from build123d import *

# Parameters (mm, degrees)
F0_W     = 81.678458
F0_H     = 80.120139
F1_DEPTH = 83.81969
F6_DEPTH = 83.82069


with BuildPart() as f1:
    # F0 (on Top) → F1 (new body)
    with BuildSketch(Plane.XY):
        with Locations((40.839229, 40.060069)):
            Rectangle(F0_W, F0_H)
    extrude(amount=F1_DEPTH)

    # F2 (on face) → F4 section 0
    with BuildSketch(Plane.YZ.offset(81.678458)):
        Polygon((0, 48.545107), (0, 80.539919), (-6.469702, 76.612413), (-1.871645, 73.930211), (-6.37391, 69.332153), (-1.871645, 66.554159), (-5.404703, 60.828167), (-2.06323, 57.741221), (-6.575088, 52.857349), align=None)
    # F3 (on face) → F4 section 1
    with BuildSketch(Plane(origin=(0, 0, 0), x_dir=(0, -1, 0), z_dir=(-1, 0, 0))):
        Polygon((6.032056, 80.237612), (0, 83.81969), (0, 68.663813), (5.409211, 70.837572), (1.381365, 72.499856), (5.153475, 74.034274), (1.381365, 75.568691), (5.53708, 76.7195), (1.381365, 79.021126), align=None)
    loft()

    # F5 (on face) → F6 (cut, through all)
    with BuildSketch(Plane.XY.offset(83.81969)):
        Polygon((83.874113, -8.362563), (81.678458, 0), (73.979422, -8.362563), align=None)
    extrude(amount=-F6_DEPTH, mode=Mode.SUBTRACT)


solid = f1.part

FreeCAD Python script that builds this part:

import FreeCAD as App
import Part
import Sketcher

V = App.Vector
Q = App.Units.Quantity

doc = App.newDocument("Part")
body = doc.addObject("PartDesign::Body", "Body")

# Sketch on XY plane
sketch1 = body.newObject("Sketcher::SketchObject", "Sketch")
sketch1.AttachmentSupport = (doc.getObject("XY_Plane"), [""])
sketch1.MapMode = "FlatFace"
sketch1.addGeometry([
    Part.LineSegment(V(0, 80, 0), V(0, 0, 0)),
    Part.LineSegment(V(0, 0, 0), V(82, 0, 0)),
    Part.LineSegment(V(82, 0, 0), V(82, 80, 0)),
    Part.LineSegment(V(82, 80, 0), V(0, 80, 0)),
], False)
sketch1.addConstraint([
    Sketcher.Constraint("Coincident", 0, 2, 1, 1),
    Sketcher.Constraint("Coincident", 1, 2, 2, 1),
    Sketcher.Constraint("Coincident", 2, 2, 3, 1),
    Sketcher.Constraint("Coincident", 3, 2, 0, 1),
    Sketcher.Constraint("Vertical", 0),
    Sketcher.Constraint("Horizontal", 1),
    Sketcher.Constraint("Vertical", 2),
    Sketcher.Constraint("Horizontal", 3),
    Sketcher.Constraint("Coincident", 0, 2, -1, 1),
    Sketcher.Constraint("DistanceX", 1, 1, 1, 2, Q("81.678458 mm")),
    Sketcher.Constraint("DistanceY", 0, 2, 0, 1, Q("80.120139 mm")),
])
pad1 = body.newObject("PartDesign::Pad", "Pad")
pad1.Profile = sketch1
pad1.Length = 83.81969

# Sketch on YZ plane
sketch2 = body.newObject("Sketcher::SketchObject", "Sketch001")
sketch2.AttachmentSupport = (doc.getObject("YZ_Plane"), [""])
sketch2.MapMode = "FlatFace"
sketch2.AttachmentOffset = App.Placement(V(0, 0, 81.678458), App.Rotation())
sketch2.addGeometry([
    Part.LineSegment(V(0, 48.5, 0), V(0, 80.5, 0)),  # 0
    Part.LineSegment(V(0, 80.5, 0), V(-6.5, 76.6, 0)),  # 1
    Part.LineSegment(V(-6.5, 76.6, 0), V(-1.9, 73.9, 0)),  # 2
    Part.LineSegment(V(-1.9, 73.9, 0), V(-6.4, 69.3, 0)),  # 3
    Part.LineSegment(V(-6.4, 69.3, 0), V(-1.9, 66.6, 0)),  # 4
    Part.LineSegment(V(-1.9, 66.6, 0), V(-5.4, 60.8, 0)),  # 5
    Part.LineSegment(V(-5.4, 60.8, 0), V(-2.1, 57.7, 0)),  # 6
    Part.LineSegment(V(-2.1, 57.7, 0), V(-6.6, 52.9, 0)),  # 7
    Part.LineSegment(V(-6.6, 52.9, 0), V(0, 48.5, 0)),  # 8
], False)
sketch2.addConstraint([
    Sketcher.Constraint("Coincident", 0, 2, 1, 1),
    Sketcher.Constraint("Coincident", 1, 2, 2, 1),
    Sketcher.Constraint("Coincident", 2, 2, 3, 1),
    Sketcher.Constraint("Coincident", 3, 2, 4, 1),
    Sketcher.Constraint("Coincident", 4, 2, 5, 1),
    Sketcher.Constraint("Coincident", 5, 2, 6, 1),
    Sketcher.Constraint("Coincident", 6, 2, 7, 1),
    Sketcher.Constraint("Coincident", 7, 2, 8, 1),
    Sketcher.Constraint("Coincident", 8, 2, 0, 1),
    Sketcher.Constraint("Vertical", 0),
    Sketcher.Constraint("PointOnObject", 0, 2, -2),
    Sketcher.Constraint("Perpendicular", 4, 5),
    Sketcher.Constraint("Perpendicular", 6, 7),
    Sketcher.Constraint("Vertical", 2, 2, 4, 2),
    Sketcher.Constraint("DistanceX", 1, 2, 5, 2, Q("1.064999 mm")),
    Sketcher.Constraint("DistanceY", 0, 1, 0, 2, Q("31.994812 mm")),
    Sketcher.Constraint("Distance", 1, Q("7.56851 mm")),
    Sketcher.Constraint("Distance", 2, Q("5.323188 mm")),
    Sketcher.Constraint("Distance", 5, Q("6.72826 mm")),
    Sketcher.Constraint("Distance", 6, Q("4.54914 mm")),
    Sketcher.Constraint("Distance", 7, Q("6.64899 mm")),
    Sketcher.Constraint("Distance", 8, Q("7.863028 mm")),
    Sketcher.Constraint("DistanceY", -1, 1, 0, 2, Q("80.539919 mm")),
    Sketcher.Constraint("DistanceY", -1, 1, 2, 2, Q("73.930211 mm")),
    Sketcher.Constraint("DistanceX", 3, 2, -1, 1, Q("6.37391 mm")),
    Sketcher.Constraint("DistanceY", -1, 1, 4, 2, Q("66.554159 mm")),
    Sketcher.Constraint("DistanceX", 6, 2, -1, 1, Q("2.06323 mm")),
])

# Sketch on YZ plane
sketch3 = body.newObject("Sketcher::SketchObject", "Sketch002")
sketch3.AttachmentSupport = (doc.getObject("YZ_Plane"), [""])
sketch3.MapMode = "FlatFace"
sketch3.addGeometry([
    Part.LineSegment(V(-6, 80.2, 0), V(0, 83.8, 0)),  # 0
    Part.LineSegment(V(0, 83.8, 0), V(0, 68.7, 0)),  # 1
    Part.LineSegment(V(0, 68.7, 0), V(-5.4, 70.8, 0)),  # 2
    Part.LineSegment(V(-5.4, 70.8, 0), V(-1.4, 72.5, 0)),  # 3
    Part.LineSegment(V(-1.4, 72.5, 0), V(-5.2, 74, 0)),  # 4
    Part.LineSegment(V(-5.2, 74, 0), V(-1.4, 75.6, 0)),  # 5
    Part.LineSegment(V(-1.4, 75.6, 0), V(-5.5, 76.7, 0)),  # 6
    Part.LineSegment(V(-5.5, 76.7, 0), V(-1.4, 79, 0)),  # 7
    Part.LineSegment(V(-1.4, 79, 0), V(-6, 80.2, 0)),  # 8
], False)
sketch3.addConstraint([
    Sketcher.Constraint("Coincident", 0, 2, 1, 1),
    Sketcher.Constraint("Coincident", 1, 2, 2, 1),
    Sketcher.Constraint("Coincident", 2, 2, 3, 1),
    Sketcher.Constraint("Coincident", 3, 2, 4, 1),
    Sketcher.Constraint("Coincident", 4, 2, 5, 1),
    Sketcher.Constraint("Coincident", 5, 2, 6, 1),
    Sketcher.Constraint("Coincident", 6, 2, 7, 1),
    Sketcher.Constraint("Coincident", 7, 2, 8, 1),
    Sketcher.Constraint("Coincident", 8, 2, 0, 1),
    Sketcher.Constraint("Vertical", 1),
    Sketcher.Constraint("PointOnObject", 0, 2, -2),
    Sketcher.Constraint("Vertical", 3, 2, 5, 2),
    Sketcher.Constraint("Vertical", 5, 2, 7, 2),
    Sketcher.Constraint("Equal", 4, 5),
    Sketcher.Constraint("DistanceY", 5, 2, 0, 2, Q("8.250999 mm")),
    Sketcher.Constraint("DistanceY", -1, 1, 6, 2, Q("76.7195 mm")),
    Sketcher.Constraint("Distance", 0, Q("7.015482 mm")),
    Sketcher.Constraint("Distance", 7, Q("4.750521 mm")),
    Sketcher.Constraint("DistanceY", 1, 2, 1, 1, Q("15.155877 mm")),
    Sketcher.Constraint("DistanceY", -1, 1, 0, 2, Q("83.81969 mm")),
    Sketcher.Constraint("DistanceX", 2, 2, -1, 1, Q("5.409211 mm")),
    Sketcher.Constraint("DistanceY", -1, 1, 2, 2, Q("70.837572 mm")),
    Sketcher.Constraint("DistanceX", 6, 2, -1, 1, Q("5.53708 mm")),
    Sketcher.Constraint("DistanceY", -1, 1, 8, 2, Q("80.237612 mm")),
    Sketcher.Constraint("DistanceX", 4, 2, 3, 2, Q("3.77211 mm")),
    Sketcher.Constraint("DistanceY", 3, 2, 4, 2, Q("1.534418 mm")),
    Sketcher.Constraint("DistanceY", 4, 2, 7, 2, Q("4.986852 mm")),
])

additiveloft = body.newObject("PartDesign::AdditiveLoft", "AdditiveLoft")
additiveloft.Profile = sketch2
additiveloft.Sections = [sketch3]

# Sketch on XY plane
sketch4 = body.newObject("Sketcher::SketchObject", "Sketch003")
sketch4.AttachmentSupport = (doc.getObject("XY_Plane"), [""])
sketch4.MapMode = "FlatFace"
sketch4.AttachmentOffset = App.Placement(V(0, 0, 83.81969), App.Rotation())
sketch4.addGeometry([
    Part.LineSegment(V(84, -8, 0), V(82, 0, 0)),
    Part.LineSegment(V(82, 0, 0), V(74, -8, 0)),
    Part.LineSegment(V(74, -8, 0), V(84, -8, 0)),
], False)
sketch4.addConstraint([
    Sketcher.Constraint("Coincident", 0, 2, 1, 1),
    Sketcher.Constraint("Coincident", 1, 2, 2, 1),
    Sketcher.Constraint("Coincident", 2, 2, 0, 1),
    Sketcher.Constraint("Horizontal", 2),
    Sketcher.Constraint("PointOnObject", 0, 2, -1),
    Sketcher.Constraint("DistanceX", 2, 1, 2, 2, Q("9.894691 mm")),
    Sketcher.Constraint("DistanceX", -1, 1, 0, 2, Q("81.678458 mm")),
    Sketcher.Constraint("DistanceX", -1, 1, 1, 2, Q("73.979422 mm")),
    Sketcher.Constraint("Distance", 0, Q("8.646003 mm")),
])
pocket1 = body.newObject("PartDesign::Pocket", "Pocket")
pocket1.Profile = sketch4
pocket1.Type = "ThroughAll"

doc.recompute()
